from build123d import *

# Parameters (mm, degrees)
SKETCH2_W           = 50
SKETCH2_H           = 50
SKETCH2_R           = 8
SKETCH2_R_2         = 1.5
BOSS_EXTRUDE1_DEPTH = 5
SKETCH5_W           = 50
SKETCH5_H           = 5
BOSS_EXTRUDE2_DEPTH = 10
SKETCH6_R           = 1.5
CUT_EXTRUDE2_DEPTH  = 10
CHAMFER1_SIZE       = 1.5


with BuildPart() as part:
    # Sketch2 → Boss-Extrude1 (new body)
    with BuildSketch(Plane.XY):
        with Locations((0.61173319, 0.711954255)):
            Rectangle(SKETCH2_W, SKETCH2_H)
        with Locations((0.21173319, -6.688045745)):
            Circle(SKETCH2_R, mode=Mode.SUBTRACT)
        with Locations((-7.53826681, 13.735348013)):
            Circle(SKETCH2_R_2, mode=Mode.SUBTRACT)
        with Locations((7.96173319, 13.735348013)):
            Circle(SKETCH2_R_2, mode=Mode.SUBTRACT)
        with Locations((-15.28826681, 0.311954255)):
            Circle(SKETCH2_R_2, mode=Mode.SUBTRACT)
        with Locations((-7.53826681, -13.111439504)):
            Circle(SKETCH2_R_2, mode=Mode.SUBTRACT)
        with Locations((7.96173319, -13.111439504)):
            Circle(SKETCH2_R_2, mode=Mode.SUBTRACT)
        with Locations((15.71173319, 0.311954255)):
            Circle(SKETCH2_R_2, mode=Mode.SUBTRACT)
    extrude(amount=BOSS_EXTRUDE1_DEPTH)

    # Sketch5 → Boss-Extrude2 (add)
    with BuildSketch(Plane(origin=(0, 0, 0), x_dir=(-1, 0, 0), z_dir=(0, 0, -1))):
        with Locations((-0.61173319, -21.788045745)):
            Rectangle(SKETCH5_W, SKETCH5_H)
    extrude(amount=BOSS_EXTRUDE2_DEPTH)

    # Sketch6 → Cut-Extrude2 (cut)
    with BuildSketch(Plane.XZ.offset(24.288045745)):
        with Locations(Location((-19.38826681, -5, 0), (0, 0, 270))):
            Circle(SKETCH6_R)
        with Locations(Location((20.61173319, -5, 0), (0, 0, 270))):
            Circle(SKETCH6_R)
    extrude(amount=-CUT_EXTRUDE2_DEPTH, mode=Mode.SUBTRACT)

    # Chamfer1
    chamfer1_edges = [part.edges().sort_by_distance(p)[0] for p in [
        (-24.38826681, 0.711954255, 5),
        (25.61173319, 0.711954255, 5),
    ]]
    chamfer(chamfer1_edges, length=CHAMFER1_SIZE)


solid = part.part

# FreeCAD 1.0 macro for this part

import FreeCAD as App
import Part
import Sketcher
from FreeCAD import Vector


def edges_at(feature, points):
    """Names of the edges that pass closest to the given points."""
    edges = feature.Shape.Edges
    near = lambda p: min(range(len(edges)), key=lambda i: edges[i].distToShape(Part.Vertex(*p))[0])
    return sorted({f"Edge{near(p) + 1}" for p in points})

doc = App.newDocument("Part")
body = doc.addObject("PartDesign::Body", "Body")

# Sketch on XY plane
sketch1 = body.newObject("Sketcher::SketchObject", "Sketch")
sketch1.AttachmentSupport = (doc.getObject("XY_Plane"), [""])
sketch1.MapMode = "FlatFace"
sketch1.addGeometry([
    Part.LineSegment(Vector(-24.388267, 25.711954, 0), Vector(-24.388267, -24.288046, 0)),  # 0
    Part.LineSegment(Vector(-24.388267, -24.288046, 0), Vector(25.611733, -24.288046, 0)),  # 1
    Part.LineSegment(Vector(25.611733, -24.288046, 0), Vector(25.611733, 25.711954, 0)),  # 2
    Part.LineSegment(Vector(25.611733, 25.711954, 0), Vector(-24.388267, 25.711954, 0)),  # 3
    Part.Circle(Vector(-7.538267, -13.11144, 0), Vector(0, 0, 1), 1.5),  # 4
    Part.Circle(Vector(7.961733, -13.11144, 0), Vector(0, 0, 1), 1.5),  # 5
    Part.Circle(Vector(0.211733, -6.688046, 0), Vector(0, 0, 1), 8),  # 6
    Part.Circle(Vector(-15.288267, 0.311954, 0), Vector(0, 0, 1), 1.5),  # 7
    Part.Circle(Vector(-7.538267, 13.735348, 0), Vector(0, 0, 1), 1.5),  # 8
    Part.Circle(Vector(15.711733, 0.311954, 0), Vector(0, 0, 1), 1.5),  # 9
    Part.Circle(Vector(7.961733, 13.735348, 0), Vector(0, 0, 1), 1.5),  # 10
], False)
sketch1.addConstraint([
    Sketcher.Constraint("Coincident", 0, 2, 1, 1),
    Sketcher.Constraint("Coincident", 1, 2, 2, 1),
    Sketcher.Constraint("Coincident", 2, 2, 3, 1),
    Sketcher.Constraint("Coincident", 3, 2, 0, 1),
    Sketcher.Constraint("Vertical", 0),
    Sketcher.Constraint("Horizontal", 1),
    Sketcher.Constraint("Vertical", 2),
    Sketcher.Constraint("Horizontal", 3),
    Sketcher.Constraint("Equal", 4, 5),
    Sketcher.Constraint("Equal", 5, 7),
    Sketcher.Constraint("Equal", 7, 8),
    Sketcher.Constraint("Equal", 8, 9),
    Sketcher.Constraint("Equal", 9, 10),
    Sketcher.Constraint("Horizontal", 4, 3, 5, 3),
    Sketcher.Constraint("Horizontal", 7, 3, 9, 3),
    Sketcher.Constraint("Horizontal", 8, 3, 10, 3),
    Sketcher.Constraint("Vertical", 4, 3, 8, 3),
    Sketcher.Constraint("Vertical", 5, 3, 10, 3),
    Sketcher.Constraint("Equal", 3, 0),
    Sketcher.Constraint("Diameter", 4, 3.0),
    Sketcher.Constraint("Diameter", 6, 16.0),
    Sketcher.Constraint("DistanceX", 1, 1, 1, 2, 50.0),
    Sketcher.Constraint("DistanceY", 6, 3, 7, 3, 7.0),
    Sketcher.Constraint("DistanceX", 7, 3, 9, 3, 31.0),
    Sketcher.Constraint("DistanceX", 4, 3, 5, 3, 15.5),
    Sketcher.Constraint("DistanceX", 7, 3, 6, 3, 15.5),
    Sketcher.Constraint("DistanceX", 0, 2, 7, 3, 9.1),
    Sketcher.Constraint("DistanceY", 0, 2, 7, 3, 24.6),
    Sketcher.Constraint("DistanceX", 4, 3, 6, 3, 7.75),
    Sketcher.Constraint("DistanceY", 4, 3, -1, 1, 13.11144),
    Sketcher.Constraint("DistanceY", -1, 1, 8, 3, 13.735348),
    Sketcher.Constraint("DistanceX", 4, 3, -1, 1, 7.538267),
    Sketcher.Constraint("DistanceY", 6, 3, -1, 1, 6.688046),
])
pad1 = body.newObject("PartDesign::Pad", "Pad")
pad1.Profile = sketch1
pad1.Length = 5

# Sketch on XY plane
sketch2 = body.newObject("Sketcher::SketchObject", "Sketch001")
sketch2.AttachmentSupport = (doc.getObject("XY_Plane"), [""])
sketch2.MapMode = "FlatFace"
sketch2.addGeometry([
    Part.LineSegment(Vector(25.611733, -19.288046, 0), Vector(25.611733, -24.288046, 0)),
    Part.LineSegment(Vector(25.611733, -24.288046, 0), Vector(-24.388267, -24.288046, 0)),
    Part.LineSegment(Vector(-24.388267, -24.288046, 0), Vector(-24.388267, -19.288046, 0)),
    Part.LineSegment(Vector(-24.388267, -19.288046, 0), Vector(25.611733, -19.288046, 0)),
], False)
sketch2.addConstraint([
    Sketcher.Constraint("Coincident", 0, 2, 1, 1),
    Sketcher.Constraint("Coincident", 1, 2, 2, 1),
    Sketcher.Constraint("Coincident", 2, 2, 3, 1),
    Sketcher.Constraint("Coincident", 3, 2, 0, 1),
    Sketcher.Constraint("Vertical", 0),
    Sketcher.Constraint("Horizontal", 1),
    Sketcher.Constraint("Vertical", 2),
    Sketcher.Constraint("Horizontal", 3),
    Sketcher.Constraint("DistanceX", 1, 2, 1, 1, 50.0),
    Sketcher.Constraint("DistanceY", 0, 2, 0, 1, 5.0),
    Sketcher.Constraint("DistanceX", -1, 1, 0, 2, 25.611733),
    Sketcher.Constraint("DistanceY", 0, 2, -1, 1, 24.288046),
])
pad2 = body.newObject("PartDesign::Pad", "Pad001")
pad2.Profile = sketch2
pad2.Length = 10
pad2.Reversed = True

# Sketch on XZ plane
sketch3 = body.newObject("Sketcher::SketchObject", "Sketch002")
sketch3.AttachmentSupport = (doc.getObject("XZ_Plane"), [""])
sketch3.MapMode = "FlatFace"
sketch3.AttachmentOffset = App.Placement(Vector(0, 0, 24.288046), App.Rotation())
sketch3.addGeometry([
    Part.Circle(Vector(-19.388267, -5, 0), Vector(0, 0, 1), 1.5),
    Part.Circle(Vector(20.611733, -5, 0), Vector(0, 0, 1), 1.5),
], False)
sketch3.addConstraint([
    Sketcher.Constraint("Equal", 0, 1),
    Sketcher.Constraint("Horizontal", 0, 3, 1, 3),
    Sketcher.Constraint("Diameter", 0, 3.0),
    Sketcher.Constraint("DistanceY", 0, 3, -1, 1, 5.0),
    Sketcher.Constraint("DistanceX", 0, 3, 1, 3, 40.0),
    Sketcher.Constraint("DistanceX", 0, 3, -1, 1, 19.388267),
])
pocket1 = body.newObject("PartDesign::Pocket", "Pocket")
pocket1.Profile = sketch3
pocket1.Length = 10
doc.recompute()

chamfer = body.newObject("PartDesign::Chamfer", "Chamfer")
chamfer.Base = (pocket1, edges_at(pocket1, [(-24.388, 0.712, 5), (25.612, 0.712, 5)]))
chamfer.Size = 1.5

doc.recompute()
